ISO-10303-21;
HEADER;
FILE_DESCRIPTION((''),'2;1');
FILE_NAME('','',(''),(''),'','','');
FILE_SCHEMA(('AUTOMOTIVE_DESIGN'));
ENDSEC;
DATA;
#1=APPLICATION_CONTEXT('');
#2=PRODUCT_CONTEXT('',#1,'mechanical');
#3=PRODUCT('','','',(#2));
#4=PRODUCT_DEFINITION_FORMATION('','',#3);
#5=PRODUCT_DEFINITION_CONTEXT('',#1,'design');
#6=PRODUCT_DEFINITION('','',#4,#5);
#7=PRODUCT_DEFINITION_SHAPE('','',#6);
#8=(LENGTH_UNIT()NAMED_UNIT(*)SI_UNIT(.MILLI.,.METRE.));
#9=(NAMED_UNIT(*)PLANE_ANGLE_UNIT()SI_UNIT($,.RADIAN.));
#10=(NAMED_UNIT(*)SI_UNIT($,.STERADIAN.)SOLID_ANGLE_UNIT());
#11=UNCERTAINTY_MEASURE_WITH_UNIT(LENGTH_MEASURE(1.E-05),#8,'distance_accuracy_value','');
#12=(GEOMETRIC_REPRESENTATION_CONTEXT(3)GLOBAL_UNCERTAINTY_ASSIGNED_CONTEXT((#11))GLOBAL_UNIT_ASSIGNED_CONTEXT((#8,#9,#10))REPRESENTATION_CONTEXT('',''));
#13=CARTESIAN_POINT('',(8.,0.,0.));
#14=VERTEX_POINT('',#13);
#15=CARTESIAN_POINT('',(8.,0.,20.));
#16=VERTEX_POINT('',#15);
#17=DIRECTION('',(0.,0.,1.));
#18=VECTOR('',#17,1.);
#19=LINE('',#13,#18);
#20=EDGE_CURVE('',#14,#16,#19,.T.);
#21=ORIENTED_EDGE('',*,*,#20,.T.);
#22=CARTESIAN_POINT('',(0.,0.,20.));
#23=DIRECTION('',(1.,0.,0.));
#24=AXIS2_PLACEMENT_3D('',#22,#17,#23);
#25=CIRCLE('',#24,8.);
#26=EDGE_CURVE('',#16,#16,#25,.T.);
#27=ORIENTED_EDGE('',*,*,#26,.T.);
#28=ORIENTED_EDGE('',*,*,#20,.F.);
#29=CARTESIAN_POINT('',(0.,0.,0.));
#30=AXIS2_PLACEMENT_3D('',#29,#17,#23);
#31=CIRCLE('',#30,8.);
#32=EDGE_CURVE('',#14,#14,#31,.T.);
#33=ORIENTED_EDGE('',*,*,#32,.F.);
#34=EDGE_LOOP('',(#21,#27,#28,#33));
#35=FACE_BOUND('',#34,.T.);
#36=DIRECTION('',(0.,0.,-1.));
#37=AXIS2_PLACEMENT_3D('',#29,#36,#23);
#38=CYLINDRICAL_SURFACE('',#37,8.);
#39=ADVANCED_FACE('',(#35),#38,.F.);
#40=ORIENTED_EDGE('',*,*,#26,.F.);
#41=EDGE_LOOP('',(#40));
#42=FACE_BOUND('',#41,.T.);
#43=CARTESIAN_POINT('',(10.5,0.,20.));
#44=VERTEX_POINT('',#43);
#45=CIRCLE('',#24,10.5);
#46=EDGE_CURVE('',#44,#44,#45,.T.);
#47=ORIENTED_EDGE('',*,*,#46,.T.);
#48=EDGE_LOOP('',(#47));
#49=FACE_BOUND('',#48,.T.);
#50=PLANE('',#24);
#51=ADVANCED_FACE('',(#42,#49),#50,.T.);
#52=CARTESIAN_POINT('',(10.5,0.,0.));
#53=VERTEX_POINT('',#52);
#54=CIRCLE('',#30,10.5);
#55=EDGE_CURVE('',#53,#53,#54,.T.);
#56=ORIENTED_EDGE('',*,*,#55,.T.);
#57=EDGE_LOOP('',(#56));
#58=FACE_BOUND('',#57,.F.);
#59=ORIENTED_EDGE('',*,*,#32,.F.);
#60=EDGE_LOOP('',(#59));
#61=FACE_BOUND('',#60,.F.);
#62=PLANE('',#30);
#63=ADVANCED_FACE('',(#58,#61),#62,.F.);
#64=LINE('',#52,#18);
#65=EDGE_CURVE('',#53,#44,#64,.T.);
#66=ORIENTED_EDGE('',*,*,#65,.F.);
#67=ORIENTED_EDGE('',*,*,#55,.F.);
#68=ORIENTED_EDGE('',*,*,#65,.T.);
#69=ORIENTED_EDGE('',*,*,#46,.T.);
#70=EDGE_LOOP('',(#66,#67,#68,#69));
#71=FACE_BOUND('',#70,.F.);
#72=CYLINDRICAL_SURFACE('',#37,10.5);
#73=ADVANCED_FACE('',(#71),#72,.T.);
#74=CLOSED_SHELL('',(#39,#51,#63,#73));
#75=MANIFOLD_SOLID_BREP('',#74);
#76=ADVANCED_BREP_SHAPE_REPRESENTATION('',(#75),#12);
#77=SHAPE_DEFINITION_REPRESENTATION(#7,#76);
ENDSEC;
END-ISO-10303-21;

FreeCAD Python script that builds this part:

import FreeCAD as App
import Part
import Sketcher

V = App.Vector

doc = App.newDocument("Part")
body = doc.addObject("PartDesign::Body", "Body")

# Sketch on XY plane
sketch1 = body.newObject("Sketcher::SketchObject", "Sketch")
sketch1.AttachmentSupport = (doc.getObject("XY_Plane"), [""])
sketch1.MapMode = "FlatFace"
sketch1.addGeometry([
    Part.Circle(V(0, 0, 0), V(0, 0, 1), 10.5),
    Part.Circle(V(0, 0, 0), V(0, 0, 1), 8),
], False)
sketch1.addConstraint([
    Sketcher.Constraint("Coincident", 0, 3, -1, 1),
    Sketcher.Constraint("Coincident", 1, 3, -1, 1),
    Sketcher.Constraint("Diameter", 0, 21.0),
    Sketcher.Constraint("Diameter", 1, 16.0),
])
pad1 = body.newObject("PartDesign::Pad", "Pad")
pad1.Profile = sketch1
pad1.Length = 20

doc.recompute()
